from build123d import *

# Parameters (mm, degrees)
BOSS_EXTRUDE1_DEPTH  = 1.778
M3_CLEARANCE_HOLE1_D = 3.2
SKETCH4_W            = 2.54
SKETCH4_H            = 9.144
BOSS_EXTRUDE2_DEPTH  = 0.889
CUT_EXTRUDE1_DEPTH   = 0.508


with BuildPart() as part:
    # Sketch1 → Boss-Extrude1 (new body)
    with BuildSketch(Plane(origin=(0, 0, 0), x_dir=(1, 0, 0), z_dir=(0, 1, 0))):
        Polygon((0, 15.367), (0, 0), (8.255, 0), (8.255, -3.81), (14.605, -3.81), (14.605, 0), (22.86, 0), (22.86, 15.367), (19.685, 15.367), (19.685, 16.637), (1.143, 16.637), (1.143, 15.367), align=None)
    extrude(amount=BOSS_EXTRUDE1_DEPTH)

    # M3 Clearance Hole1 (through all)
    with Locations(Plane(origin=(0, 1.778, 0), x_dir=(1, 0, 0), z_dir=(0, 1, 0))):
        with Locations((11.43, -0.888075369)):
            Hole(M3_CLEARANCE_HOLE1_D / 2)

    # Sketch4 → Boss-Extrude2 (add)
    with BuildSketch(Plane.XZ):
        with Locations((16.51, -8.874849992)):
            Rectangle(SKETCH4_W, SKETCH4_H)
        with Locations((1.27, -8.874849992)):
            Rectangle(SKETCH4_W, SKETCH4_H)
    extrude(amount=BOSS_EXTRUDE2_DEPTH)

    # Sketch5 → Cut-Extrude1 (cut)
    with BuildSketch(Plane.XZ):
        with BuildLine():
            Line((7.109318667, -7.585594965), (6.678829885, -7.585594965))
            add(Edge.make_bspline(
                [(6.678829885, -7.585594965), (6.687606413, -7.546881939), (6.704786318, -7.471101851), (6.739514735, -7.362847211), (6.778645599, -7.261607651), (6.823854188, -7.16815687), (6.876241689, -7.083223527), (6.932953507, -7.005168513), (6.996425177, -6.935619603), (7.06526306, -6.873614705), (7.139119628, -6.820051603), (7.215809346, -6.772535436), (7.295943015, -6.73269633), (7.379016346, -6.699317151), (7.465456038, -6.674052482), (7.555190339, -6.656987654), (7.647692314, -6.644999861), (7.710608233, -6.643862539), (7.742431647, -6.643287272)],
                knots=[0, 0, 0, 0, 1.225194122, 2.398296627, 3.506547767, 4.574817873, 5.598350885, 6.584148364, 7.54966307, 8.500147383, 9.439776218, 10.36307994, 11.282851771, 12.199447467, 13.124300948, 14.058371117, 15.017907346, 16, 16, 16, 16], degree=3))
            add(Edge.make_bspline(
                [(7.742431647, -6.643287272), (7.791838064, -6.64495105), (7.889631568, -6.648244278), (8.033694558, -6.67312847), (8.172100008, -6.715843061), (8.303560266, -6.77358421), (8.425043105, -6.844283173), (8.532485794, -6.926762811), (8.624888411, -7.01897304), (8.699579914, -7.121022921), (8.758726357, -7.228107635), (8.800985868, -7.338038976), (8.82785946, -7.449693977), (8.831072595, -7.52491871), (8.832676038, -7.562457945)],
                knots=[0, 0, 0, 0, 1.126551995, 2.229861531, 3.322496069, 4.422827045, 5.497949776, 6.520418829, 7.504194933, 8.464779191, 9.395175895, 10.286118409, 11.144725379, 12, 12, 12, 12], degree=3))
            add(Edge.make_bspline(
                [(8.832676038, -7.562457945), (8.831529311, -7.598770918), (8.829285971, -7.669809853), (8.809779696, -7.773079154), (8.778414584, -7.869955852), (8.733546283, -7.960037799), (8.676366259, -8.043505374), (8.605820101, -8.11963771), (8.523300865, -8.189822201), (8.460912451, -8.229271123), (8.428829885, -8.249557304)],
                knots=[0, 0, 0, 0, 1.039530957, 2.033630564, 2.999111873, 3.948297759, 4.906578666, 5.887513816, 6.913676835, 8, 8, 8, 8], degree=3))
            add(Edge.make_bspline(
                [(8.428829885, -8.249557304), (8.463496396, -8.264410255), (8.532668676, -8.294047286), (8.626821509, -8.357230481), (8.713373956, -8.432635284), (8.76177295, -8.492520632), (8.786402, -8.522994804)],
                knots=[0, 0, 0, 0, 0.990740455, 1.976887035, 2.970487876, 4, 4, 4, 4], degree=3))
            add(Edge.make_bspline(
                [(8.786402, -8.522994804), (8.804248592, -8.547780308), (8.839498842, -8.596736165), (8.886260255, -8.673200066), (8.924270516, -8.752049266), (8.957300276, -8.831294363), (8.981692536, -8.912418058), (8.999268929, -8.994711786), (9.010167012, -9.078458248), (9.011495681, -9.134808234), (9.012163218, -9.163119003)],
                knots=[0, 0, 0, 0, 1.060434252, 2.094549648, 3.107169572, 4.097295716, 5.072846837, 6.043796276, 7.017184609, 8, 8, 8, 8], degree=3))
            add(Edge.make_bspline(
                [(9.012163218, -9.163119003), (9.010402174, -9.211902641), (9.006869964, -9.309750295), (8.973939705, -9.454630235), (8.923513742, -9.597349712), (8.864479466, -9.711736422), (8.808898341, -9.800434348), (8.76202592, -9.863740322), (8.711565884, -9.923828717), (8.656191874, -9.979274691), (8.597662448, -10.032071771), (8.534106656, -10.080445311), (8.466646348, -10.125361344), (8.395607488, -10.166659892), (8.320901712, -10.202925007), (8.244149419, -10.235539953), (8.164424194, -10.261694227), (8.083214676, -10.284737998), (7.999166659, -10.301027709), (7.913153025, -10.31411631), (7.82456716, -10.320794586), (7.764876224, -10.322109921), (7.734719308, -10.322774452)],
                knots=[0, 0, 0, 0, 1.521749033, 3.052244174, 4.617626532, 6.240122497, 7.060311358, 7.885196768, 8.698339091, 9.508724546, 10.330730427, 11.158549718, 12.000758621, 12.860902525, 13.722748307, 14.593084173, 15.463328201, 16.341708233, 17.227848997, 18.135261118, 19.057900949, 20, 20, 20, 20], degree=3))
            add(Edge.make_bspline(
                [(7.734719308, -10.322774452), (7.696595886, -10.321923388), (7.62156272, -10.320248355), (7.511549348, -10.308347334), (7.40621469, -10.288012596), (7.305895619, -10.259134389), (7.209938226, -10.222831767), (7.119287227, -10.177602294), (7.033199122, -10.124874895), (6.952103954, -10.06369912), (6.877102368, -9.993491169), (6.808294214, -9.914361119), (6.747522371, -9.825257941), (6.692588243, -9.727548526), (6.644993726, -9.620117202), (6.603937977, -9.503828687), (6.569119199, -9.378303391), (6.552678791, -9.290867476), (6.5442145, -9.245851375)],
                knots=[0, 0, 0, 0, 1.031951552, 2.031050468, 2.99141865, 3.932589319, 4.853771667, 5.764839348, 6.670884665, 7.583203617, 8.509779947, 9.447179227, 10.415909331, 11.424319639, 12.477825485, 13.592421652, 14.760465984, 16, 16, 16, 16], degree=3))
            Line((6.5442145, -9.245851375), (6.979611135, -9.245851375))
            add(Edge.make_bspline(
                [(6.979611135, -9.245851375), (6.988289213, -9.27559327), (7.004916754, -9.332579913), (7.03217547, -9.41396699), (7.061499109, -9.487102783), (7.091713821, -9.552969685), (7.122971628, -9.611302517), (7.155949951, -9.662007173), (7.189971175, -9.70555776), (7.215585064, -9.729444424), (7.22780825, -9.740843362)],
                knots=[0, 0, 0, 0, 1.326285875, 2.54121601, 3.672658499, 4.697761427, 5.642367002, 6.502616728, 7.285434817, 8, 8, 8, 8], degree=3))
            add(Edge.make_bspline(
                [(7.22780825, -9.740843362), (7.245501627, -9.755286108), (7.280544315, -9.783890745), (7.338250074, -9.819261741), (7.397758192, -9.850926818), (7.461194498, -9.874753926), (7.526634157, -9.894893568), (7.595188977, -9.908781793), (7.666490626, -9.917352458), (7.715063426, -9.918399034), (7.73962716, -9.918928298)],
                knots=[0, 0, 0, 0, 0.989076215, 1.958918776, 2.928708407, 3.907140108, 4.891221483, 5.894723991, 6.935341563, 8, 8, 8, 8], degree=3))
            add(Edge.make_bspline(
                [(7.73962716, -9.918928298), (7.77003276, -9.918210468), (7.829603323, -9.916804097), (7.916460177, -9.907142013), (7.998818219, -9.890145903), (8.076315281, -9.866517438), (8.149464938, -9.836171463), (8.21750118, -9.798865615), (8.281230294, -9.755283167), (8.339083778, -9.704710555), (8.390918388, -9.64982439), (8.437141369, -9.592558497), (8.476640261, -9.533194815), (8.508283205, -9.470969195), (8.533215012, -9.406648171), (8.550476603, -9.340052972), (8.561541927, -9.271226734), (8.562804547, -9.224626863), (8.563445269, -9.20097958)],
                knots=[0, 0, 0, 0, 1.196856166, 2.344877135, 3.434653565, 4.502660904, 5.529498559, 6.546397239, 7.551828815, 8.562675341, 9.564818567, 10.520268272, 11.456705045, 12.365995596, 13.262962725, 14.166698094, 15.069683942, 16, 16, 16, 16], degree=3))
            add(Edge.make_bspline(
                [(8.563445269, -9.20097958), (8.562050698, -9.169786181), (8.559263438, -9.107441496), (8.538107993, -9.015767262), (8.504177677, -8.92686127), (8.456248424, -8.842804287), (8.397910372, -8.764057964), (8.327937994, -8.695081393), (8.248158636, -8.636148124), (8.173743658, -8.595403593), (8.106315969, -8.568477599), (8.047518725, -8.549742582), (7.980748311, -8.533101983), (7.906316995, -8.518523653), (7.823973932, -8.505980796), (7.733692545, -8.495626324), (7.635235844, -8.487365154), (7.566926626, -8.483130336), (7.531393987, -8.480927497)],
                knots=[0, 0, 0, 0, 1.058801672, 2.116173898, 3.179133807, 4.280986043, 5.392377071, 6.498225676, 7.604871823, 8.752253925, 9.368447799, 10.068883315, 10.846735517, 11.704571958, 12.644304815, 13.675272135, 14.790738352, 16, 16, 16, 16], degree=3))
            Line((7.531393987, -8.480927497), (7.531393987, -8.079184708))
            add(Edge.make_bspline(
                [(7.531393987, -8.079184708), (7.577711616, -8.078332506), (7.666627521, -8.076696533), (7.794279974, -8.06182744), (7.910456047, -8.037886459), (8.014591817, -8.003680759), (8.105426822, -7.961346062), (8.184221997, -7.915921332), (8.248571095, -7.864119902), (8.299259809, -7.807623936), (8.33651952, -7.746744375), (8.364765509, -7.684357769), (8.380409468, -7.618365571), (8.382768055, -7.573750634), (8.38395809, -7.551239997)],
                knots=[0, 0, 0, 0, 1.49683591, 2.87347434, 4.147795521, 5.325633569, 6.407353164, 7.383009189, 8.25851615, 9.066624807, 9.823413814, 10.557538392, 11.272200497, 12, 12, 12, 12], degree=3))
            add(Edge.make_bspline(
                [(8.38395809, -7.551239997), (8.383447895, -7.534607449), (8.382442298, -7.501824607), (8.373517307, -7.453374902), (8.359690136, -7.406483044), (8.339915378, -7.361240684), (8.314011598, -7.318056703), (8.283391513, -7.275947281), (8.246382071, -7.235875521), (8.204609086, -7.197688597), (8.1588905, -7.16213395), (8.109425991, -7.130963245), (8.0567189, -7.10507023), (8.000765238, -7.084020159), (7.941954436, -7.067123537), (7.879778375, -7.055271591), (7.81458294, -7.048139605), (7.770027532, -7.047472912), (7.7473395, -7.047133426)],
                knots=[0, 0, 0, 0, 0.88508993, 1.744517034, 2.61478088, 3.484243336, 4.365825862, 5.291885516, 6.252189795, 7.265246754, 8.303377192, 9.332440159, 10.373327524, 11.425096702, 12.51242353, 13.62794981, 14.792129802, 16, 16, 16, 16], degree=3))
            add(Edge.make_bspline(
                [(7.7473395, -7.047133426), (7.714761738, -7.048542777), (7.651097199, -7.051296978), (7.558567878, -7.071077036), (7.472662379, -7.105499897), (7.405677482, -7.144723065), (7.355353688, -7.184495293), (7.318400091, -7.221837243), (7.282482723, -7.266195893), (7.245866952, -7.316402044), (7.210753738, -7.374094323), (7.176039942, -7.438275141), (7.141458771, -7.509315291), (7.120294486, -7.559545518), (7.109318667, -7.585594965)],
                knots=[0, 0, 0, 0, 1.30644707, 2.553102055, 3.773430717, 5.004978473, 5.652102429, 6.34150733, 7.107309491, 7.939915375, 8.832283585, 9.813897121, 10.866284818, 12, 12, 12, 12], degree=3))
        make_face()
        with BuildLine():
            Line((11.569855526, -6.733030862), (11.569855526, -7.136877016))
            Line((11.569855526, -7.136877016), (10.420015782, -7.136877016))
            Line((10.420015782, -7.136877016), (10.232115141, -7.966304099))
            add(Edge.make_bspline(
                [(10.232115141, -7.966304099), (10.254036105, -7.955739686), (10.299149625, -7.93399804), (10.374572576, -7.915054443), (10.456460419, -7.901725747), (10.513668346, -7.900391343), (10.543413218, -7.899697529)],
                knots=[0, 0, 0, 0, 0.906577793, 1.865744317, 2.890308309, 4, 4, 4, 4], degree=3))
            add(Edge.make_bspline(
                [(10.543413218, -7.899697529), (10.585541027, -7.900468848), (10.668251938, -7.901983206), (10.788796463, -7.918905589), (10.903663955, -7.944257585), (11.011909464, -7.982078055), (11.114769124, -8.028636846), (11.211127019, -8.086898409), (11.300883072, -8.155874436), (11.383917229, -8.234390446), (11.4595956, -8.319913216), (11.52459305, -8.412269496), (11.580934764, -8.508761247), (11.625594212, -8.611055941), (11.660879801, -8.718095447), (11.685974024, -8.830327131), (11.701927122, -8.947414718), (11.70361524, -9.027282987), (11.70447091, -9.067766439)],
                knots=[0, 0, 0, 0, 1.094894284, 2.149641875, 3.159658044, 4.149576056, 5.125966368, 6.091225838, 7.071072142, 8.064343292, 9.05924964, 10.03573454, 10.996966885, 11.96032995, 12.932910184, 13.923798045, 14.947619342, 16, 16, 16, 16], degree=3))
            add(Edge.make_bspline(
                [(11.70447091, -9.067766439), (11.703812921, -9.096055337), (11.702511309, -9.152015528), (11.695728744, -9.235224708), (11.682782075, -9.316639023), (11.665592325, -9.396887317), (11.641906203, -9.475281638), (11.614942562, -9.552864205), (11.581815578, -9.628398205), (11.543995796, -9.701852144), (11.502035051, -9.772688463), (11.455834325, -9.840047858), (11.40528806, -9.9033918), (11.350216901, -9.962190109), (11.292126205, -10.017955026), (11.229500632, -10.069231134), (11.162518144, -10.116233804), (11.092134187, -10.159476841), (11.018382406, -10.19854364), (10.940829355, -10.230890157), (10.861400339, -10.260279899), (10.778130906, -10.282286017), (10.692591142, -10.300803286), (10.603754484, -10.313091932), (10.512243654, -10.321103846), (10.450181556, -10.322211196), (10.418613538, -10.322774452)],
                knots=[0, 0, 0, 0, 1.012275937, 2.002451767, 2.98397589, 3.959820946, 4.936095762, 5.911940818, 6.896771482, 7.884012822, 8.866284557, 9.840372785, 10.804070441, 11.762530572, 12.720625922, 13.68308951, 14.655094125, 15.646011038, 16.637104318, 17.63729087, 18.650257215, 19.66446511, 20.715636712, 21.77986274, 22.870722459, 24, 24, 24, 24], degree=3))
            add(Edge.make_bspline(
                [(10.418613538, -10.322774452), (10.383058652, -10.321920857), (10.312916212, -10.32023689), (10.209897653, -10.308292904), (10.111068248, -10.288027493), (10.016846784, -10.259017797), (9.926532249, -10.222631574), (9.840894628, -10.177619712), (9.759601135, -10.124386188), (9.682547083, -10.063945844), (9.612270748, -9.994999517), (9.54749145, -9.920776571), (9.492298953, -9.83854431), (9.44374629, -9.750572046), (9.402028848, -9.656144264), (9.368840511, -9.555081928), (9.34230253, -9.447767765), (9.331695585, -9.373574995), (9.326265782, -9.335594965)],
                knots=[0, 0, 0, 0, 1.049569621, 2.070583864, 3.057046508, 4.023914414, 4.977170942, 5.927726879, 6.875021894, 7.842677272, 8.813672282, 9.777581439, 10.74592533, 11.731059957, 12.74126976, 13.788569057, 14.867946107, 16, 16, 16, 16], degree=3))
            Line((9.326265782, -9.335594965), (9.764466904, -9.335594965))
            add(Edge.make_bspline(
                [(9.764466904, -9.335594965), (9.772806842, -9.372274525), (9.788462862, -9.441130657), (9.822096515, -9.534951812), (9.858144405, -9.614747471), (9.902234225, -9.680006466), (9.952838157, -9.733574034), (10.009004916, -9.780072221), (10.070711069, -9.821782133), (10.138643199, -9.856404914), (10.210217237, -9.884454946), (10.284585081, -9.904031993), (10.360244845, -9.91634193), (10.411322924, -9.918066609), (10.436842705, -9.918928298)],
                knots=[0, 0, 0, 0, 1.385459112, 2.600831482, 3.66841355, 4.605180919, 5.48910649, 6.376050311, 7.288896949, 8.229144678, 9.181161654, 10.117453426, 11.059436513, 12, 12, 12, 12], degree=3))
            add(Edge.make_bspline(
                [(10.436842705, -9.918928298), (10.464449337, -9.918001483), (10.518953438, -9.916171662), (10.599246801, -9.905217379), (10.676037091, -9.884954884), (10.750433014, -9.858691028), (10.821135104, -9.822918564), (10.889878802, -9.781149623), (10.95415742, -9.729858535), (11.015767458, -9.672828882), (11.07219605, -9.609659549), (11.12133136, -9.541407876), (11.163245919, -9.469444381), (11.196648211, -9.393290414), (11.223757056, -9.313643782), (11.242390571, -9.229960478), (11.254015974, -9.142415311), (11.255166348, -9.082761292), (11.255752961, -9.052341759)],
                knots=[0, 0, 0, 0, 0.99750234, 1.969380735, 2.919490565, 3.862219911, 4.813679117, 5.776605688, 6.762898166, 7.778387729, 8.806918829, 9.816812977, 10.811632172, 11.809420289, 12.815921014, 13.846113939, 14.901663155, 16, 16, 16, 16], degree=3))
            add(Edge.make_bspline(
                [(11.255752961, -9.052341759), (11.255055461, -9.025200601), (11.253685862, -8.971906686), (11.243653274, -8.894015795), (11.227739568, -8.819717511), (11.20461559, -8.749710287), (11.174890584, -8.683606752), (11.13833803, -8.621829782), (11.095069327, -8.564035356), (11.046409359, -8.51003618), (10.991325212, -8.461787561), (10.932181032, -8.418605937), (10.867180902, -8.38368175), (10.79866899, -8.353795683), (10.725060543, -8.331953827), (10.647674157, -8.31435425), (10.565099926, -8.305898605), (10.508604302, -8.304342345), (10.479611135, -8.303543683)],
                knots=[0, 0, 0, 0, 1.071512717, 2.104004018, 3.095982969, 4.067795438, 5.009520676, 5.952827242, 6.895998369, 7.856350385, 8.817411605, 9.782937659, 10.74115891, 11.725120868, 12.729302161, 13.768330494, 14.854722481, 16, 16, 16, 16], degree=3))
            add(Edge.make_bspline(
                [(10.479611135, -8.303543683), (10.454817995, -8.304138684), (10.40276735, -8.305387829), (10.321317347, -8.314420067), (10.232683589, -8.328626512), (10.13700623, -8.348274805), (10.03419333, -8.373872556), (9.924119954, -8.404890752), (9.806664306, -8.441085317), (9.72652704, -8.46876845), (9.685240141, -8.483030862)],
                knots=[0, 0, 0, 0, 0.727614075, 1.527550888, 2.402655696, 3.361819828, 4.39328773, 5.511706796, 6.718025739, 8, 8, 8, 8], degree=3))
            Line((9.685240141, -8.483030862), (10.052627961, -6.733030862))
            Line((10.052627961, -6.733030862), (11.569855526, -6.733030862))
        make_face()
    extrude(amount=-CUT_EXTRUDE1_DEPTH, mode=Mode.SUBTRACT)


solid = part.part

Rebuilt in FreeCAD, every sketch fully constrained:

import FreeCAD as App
import Part
import Sketcher
Q = App.Units.Quantity

doc = App.newDocument("Part")
body = doc.addObject("PartDesign::Body", "Body")

sketch1 = doc.addObject("Sketcher::SketchObject", "Sketch")
body.addObject(sketch1)
sketch1.AttachmentSupport = (doc.XZ_Plane, [""])
sketch1.MapMode = "FlatFace"
sketch1.addGeometry(Part.LineSegment(App.Vector(0, -15.367, 0), App.Vector(0, 0, 0)), False)
sketch1.addGeometry(Part.LineSegment(App.Vector(0, 0, 0), App.Vector(8.255, 0, 0)), False)
sketch1.addGeometry(Part.LineSegment(App.Vector(8.255, 0, 0), App.Vector(8.255, 3.81, 0)), False)
sketch1.addGeometry(Part.LineSegment(App.Vector(8.255, 3.81, 0), App.Vector(14.605, 3.81, 0)), False)
sketch1.addGeometry(Part.LineSegment(App.Vector(14.605, 3.81, 0), App.Vector(14.605, 0, 0)), False)
sketch1.addGeometry(Part.LineSegment(App.Vector(14.605, 0, 0), App.Vector(22.86, 0, 0)), False)
sketch1.addGeometry(Part.LineSegment(App.Vector(22.86, 0, 0), App.Vector(22.86, -15.367, 0)), False)
sketch1.addGeometry(Part.LineSegment(App.Vector(22.86, -15.367, 0), App.Vector(19.685, -15.367, 0)), False)
sketch1.addGeometry(Part.LineSegment(App.Vector(19.685, -15.367, 0), App.Vector(19.685, -16.637, 0)), False)
sketch1.addGeometry(Part.LineSegment(App.Vector(19.685, -16.637, 0), App.Vector(1.143, -16.637, 0)), False)
sketch1.addGeometry(Part.LineSegment(App.Vector(1.143, -16.637, 0), App.Vector(1.143, -15.367, 0)), False)
sketch1.addGeometry(Part.LineSegment(App.Vector(1.143, -15.367, 0), App.Vector(0, -15.367, 0)), False)
sketch1.addConstraint(Sketcher.Constraint("Coincident", 0, 2, 1, 1))
sketch1.addConstraint(Sketcher.Constraint("Coincident", 1, 2, 2, 1))
sketch1.addConstraint(Sketcher.Constraint("Coincident", 2, 2, 3, 1))
sketch1.addConstraint(Sketcher.Constraint("Coincident", 3, 2, 4, 1))
sketch1.addConstraint(Sketcher.Constraint("Coincident", 4, 2, 5, 1))
sketch1.addConstraint(Sketcher.Constraint("Coincident", 5, 2, 6, 1))
sketch1.addConstraint(Sketcher.Constraint("Coincident", 6, 2, 7, 1))
sketch1.addConstraint(Sketcher.Constraint("Coincident", 7, 2, 8, 1))
sketch1.addConstraint(Sketcher.Constraint("Coincident", 8, 2, 9, 1))
sketch1.addConstraint(Sketcher.Constraint("Coincident", 9, 2, 10, 1))
sketch1.addConstraint(Sketcher.Constraint("Coincident", 10, 2, 11, 1))
sketch1.addConstraint(Sketcher.Constraint("Coincident", 11, 2, 0, 1))
sketch1.addConstraint(Sketcher.Constraint("Vertical", 0))
sketch1.addConstraint(Sketcher.Constraint("Horizontal", 1))
sketch1.addConstraint(Sketcher.Constraint("Vertical", 2))
sketch1.addConstraint(Sketcher.Constraint("Horizontal", 3))
sketch1.addConstraint(Sketcher.Constraint("Vertical", 4))
sketch1.addConstraint(Sketcher.Constraint("Horizontal", 5))
sketch1.addConstraint(Sketcher.Constraint("Vertical", 6))
sketch1.addConstraint(Sketcher.Constraint("Horizontal", 7))
sketch1.addConstraint(Sketcher.Constraint("Vertical", 8))
sketch1.addConstraint(Sketcher.Constraint("Horizontal", 9))
sketch1.addConstraint(Sketcher.Constraint("Vertical", 10))
sketch1.addConstraint(Sketcher.Constraint("Horizontal", 11))
sketch1.addConstraint(Sketcher.Constraint("Coincident", 0, 2, -1, 1))
sketch1.addConstraint(Sketcher.Constraint("PointOnObject", 4, 2, -1))
sketch1.addConstraint(Sketcher.Constraint("Horizontal", 7, 2, 10, 2))
sketch1.addConstraint(Sketcher.Constraint("Equal", 1, 5))
sketch1.addConstraint(Sketcher.Constraint("DistanceX", 3, 1, 3, 2, Q("0.25 in")))
sketch1.addConstraint(Sketcher.Constraint("DistanceX", 9, 2, 9, 1, Q("0.73 in")))
sketch1.addConstraint(Sketcher.Constraint("DistanceY", 2, 1, 2, 2, Q("0.15 in")))
sketch1.addConstraint(Sketcher.Constraint("DistanceY", 8, 2, 8, 1, Q("0.05 in")))
sketch1.addConstraint(Sketcher.Constraint("DistanceX", -1, 1, 5, 2, Q("0.9 in")))
sketch1.addConstraint(Sketcher.Constraint("DistanceX", 4, 2, 7, 2, Q("0.2 in")))
sketch1.addConstraint(Sketcher.Constraint("DistanceY", 0, 1, 0, 2, Q("0.605 in")))
pad1 = doc.addObject("PartDesign::Pad", "Pad")
body.addObject(pad1)
pad1.Profile = sketch1
pad1.Length = Q("0.07 in")
pad1.Reversed = True

sketch2 = doc.addObject("Sketcher::SketchObject", "Sketch001")
body.addObject(sketch2)
sketch2.AttachmentSupport = (doc.XZ_Plane, [""])
sketch2.MapMode = "FlatFace"
sketch2.AttachmentOffset = App.Placement(App.Vector(0, 0, -0.07 * 25.4), App.Rotation())
sketch2.addGeometry(Part.Circle(App.Vector(11.43, 0.888075, 0), App.Vector(0, 0, 1), 1.6), False)
sketch2.addConstraint(Sketcher.Constraint("Diameter", 0, Q("3.2 mm")))
sketch2.addConstraint(Sketcher.Constraint("DistanceX", -1, 1, 0, 3, Q("0.45 in")))
sketch2.addConstraint(Sketcher.Constraint("DistanceY", -1, 1, 0, 3, Q("0.888075 mm")))
doc.recompute()
hole = doc.addObject("PartDesign::Hole", "Hole")
body.addObject(hole)
hole.Profile = sketch2
hole.ThreadType = "None"
hole.Diameter = 3.2
hole.DepthType = "ThroughAll"
hole.Reversed = True

sketch3 = doc.addObject("Sketcher::SketchObject", "Sketch002")
body.addObject(sketch3)
sketch3.AttachmentSupport = (doc.XZ_Plane, [""])
sketch3.MapMode = "FlatFace"
sketch3.addGeometry(Part.LineSegment(App.Vector(15.24, -4.30285, 0), App.Vector(15.24, -13.44685, 0)), False)
sketch3.addGeometry(Part.LineSegment(App.Vector(15.24, -13.44685, 0), App.Vector(17.78, -13.44685, 0)), False)
sketch3.addGeometry(Part.LineSegment(App.Vector(17.78, -13.44685, 0), App.Vector(17.78, -4.30285, 0)), False)
sketch3.addGeometry(Part.LineSegment(App.Vector(17.78, -4.30285, 0), App.Vector(15.24, -4.30285, 0)), False)
sketch3.addGeometry(Part.LineSegment(App.Vector(0, -4.30285, 0), App.Vector(0, -13.44685, 0)), False)
sketch3.addGeometry(Part.LineSegment(App.Vector(0, -13.44685, 0), App.Vector(2.54, -13.44685, 0)), False)
sketch3.addGeometry(Part.LineSegment(App.Vector(2.54, -13.44685, 0), App.Vector(2.54, -4.30285, 0)), False)
sketch3.addGeometry(Part.LineSegment(App.Vector(2.54, -4.30285, 0), App.Vector(0, -4.30285, 0)), False)
sketch3.addConstraint(Sketcher.Constraint("Coincident", 0, 2, 1, 1))
sketch3.addConstraint(Sketcher.Constraint("Coincident", 1, 2, 2, 1))
sketch3.addConstraint(Sketcher.Constraint("Coincident", 2, 2, 3, 1))
sketch3.addConstraint(Sketcher.Constraint("Coincident", 3, 2, 0, 1))
sketch3.addConstraint(Sketcher.Constraint("Coincident", 4, 2, 5, 1))
sketch3.addConstraint(Sketcher.Constraint("Coincident", 5, 2, 6, 1))
sketch3.addConstraint(Sketcher.Constraint("Coincident", 6, 2, 7, 1))
sketch3.addConstraint(Sketcher.Constraint("Coincident", 7, 2, 4, 1))
sketch3.addConstraint(Sketcher.Constraint("Vertical", 0))
sketch3.addConstraint(Sketcher.Constraint("Horizontal", 1))
sketch3.addConstraint(Sketcher.Constraint("Vertical", 2))
sketch3.addConstraint(Sketcher.Constraint("Horizontal", 3))
sketch3.addConstraint(Sketcher.Constraint("Vertical", 4))
sketch3.addConstraint(Sketcher.Constraint("Horizontal", 5))
sketch3.addConstraint(Sketcher.Constraint("Vertical", 6))
sketch3.addConstraint(Sketcher.Constraint("Horizontal", 7))
sketch3.addConstraint(Sketcher.Constraint("PointOnObject", 4, 2, -2))
sketch3.addConstraint(Sketcher.Constraint("Horizontal", 1, 2, 4, 2))
sketch3.addConstraint(Sketcher.Constraint("Horizontal", 3, 2, 6, 2))
sketch3.addConstraint(Sketcher.Constraint("Equal", 3, 5))
sketch3.addConstraint(Sketcher.Constraint("DistanceX", 1, 1, 1, 2, Q("0.1 in")))
sketch3.addConstraint(Sketcher.Constraint("DistanceY", 0, 2, 0, 1, Q("0.36 in")))
sketch3.addConstraint(Sketcher.Constraint("DistanceX", -1, 1, 0, 2, Q("0.6 in")))
sketch3.addConstraint(Sketcher.Constraint("DistanceY", 0, 2, -1, 1, Q("13.44685 mm")))
pad2 = doc.addObject("PartDesign::Pad", "Pad001")
body.addObject(pad2)
pad2.Profile = sketch3
pad2.Length = Q("0.035 in")

sketch4 = doc.addObject("Sketcher::SketchObject", "Sketch003")
body.addObject(sketch4)
sketch4.AttachmentSupport = (doc.XZ_Plane, [""])
sketch4.MapMode = "FlatFace"
sketch4.addGeometry(Part.LineSegment(App.Vector(6.67883, -7.585595, 0), App.Vector(7.109319, -7.585595, 0)), False)
sketch4.addGeometry(Part.BSplineCurve([App.Vector(7.747339, -7.047133, 0), App.Vector(7.714762, -7.048543, 0), App.Vector(7.651097, -7.051297, 0), App.Vector(7.558568, -7.071077, 0), App.Vector(7.472662, -7.1055, 0), App.Vector(7.405677, -7.144723, 0), App.Vector(7.355354, -7.184495, 0), App.Vector(7.3184, -7.221837, 0), App.Vector(7.282483, -7.266196, 0), App.Vector(7.245867, -7.316402, 0), App.Vector(7.210754, -7.374094, 0), App.Vector(7.17604, -7.438275, 0), App.Vector(7.141459, -7.509315, 0), App.Vector(7.120294, -7.559546, 0), App.Vector(7.109319, -7.585595, 0)], [4, 1, 1, 1, 1, 1, 1, 1, 1, 1, 1, 1, 4], [0, 1.30644707, 2.553102055, 3.773430717, 5.004978473, 5.652102429, 6.34150733, 7.107309491, 7.939915375, 8.832283585, 9.813897121, 10.866284818, 12], False, 3, [1, 1, 1, 1, 1, 1, 1, 1, 1, 1, 1, 1, 1, 1, 1], False), False)
sketch4.addGeometry(Part.BSplineCurve([App.Vector(8.383958, -7.55124, 0), App.Vector(8.383448, -7.534607, 0), App.Vector(8.382442, -7.501825, 0), App.Vector(8.373517, -7.453375, 0), App.Vector(8.35969, -7.406483, 0), App.Vector(8.339915, -7.361241, 0), App.Vector(8.314012, -7.318057, 0), App.Vector(8.283392, -7.275947, 0), App.Vector(8.246382, -7.235876, 0), App.Vector(8.204609, -7.197689, 0), App.Vector(8.158891, -7.162134, 0), App.Vector(8.109426, -7.130963, 0), App.Vector(8.056719, -7.10507, 0), App.Vector(8.000765, -7.08402, 0), App.Vector(7.941954, -7.067124, 0), App.Vector(7.879778, -7.055272, 0), App.Vector(7.814583, -7.04814, 0), App.Vector(7.770028, -7.047473, 0), App.Vector(7.747339, -7.047133, 0)], [4, 1, 1, 1, 1, 1, 1, 1, 1, 1, 1, 1, 1, 1, 1, 1, 4], [0, 0.88508993, 1.744517034, 2.61478088, 3.484243336, 4.365825862, 5.291885516, 6.252189795, 7.265246754, 8.303377192, 9.332440159, 10.373327524, 11.425096702, 12.51242353, 13.62794981, 14.792129802, 16], False, 3, [1, 1, 1, 1, 1, 1, 1, 1, 1, 1, 1, 1, 1, 1, 1, 1, 1, 1, 1], False), False)
sketch4.addGeometry(Part.BSplineCurve([App.Vector(7.531394, -8.079185, 0), App.Vector(7.577712, -8.078333, 0), App.Vector(7.666628, -8.076697, 0), App.Vector(7.79428, -8.061827, 0), App.Vector(7.910456, -8.037886, 0), App.Vector(8.014592, -8.003681, 0), App.Vector(8.105427, -7.961346, 0), App.Vector(8.184222, -7.915921, 0), App.Vector(8.248571, -7.86412, 0), App.Vector(8.29926, -7.807624, 0), App.Vector(8.33652, -7.746744, 0), App.Vector(8.364766, -7.684358, 0), App.Vector(8.380409, -7.618366, 0), App.Vector(8.382768, -7.573751, 0), App.Vector(8.383958, -7.55124, 0)], [4, 1, 1, 1, 1, 1, 1, 1, 1, 1, 1, 1, 4], [0, 1.49683591, 2.87347434, 4.147795521, 5.325633569, 6.407353164, 7.383009189, 8.25851615, 9.066624807, 9.823413814, 10.557538392, 11.272200497, 12], False, 3, [1, 1, 1, 1, 1, 1, 1, 1, 1, 1, 1, 1, 1, 1, 1], False), False)
sketch4.addGeometry(Part.LineSegment(App.Vector(7.531394, -8.079185, 0), App.Vector(7.531394, -8.480927, 0)), False)
sketch4.addGeometry(Part.BSplineCurve([App.Vector(8.563445, -9.20098, 0), App.Vector(8.562051, -9.169786, 0), App.Vector(8.559263, -9.107441, 0), App.Vector(8.538108, -9.015767, 0), App.Vector(8.504178, -8.926861, 0), App.Vector(8.456248, -8.842804, 0), App.Vector(8.39791, -8.764058, 0), App.Vector(8.327938, -8.695081, 0), App.Vector(8.248159, -8.636148, 0), App.Vector(8.173744, -8.595404, 0), App.Vector(8.106316, -8.568478, 0), App.Vector(8.047519, -8.549743, 0), App.Vector(7.980748, -8.533102, 0), App.Vector(7.906317, -8.518524, 0), App.Vector(7.823974, -8.505981, 0), App.Vector(7.733693, -8.495626, 0), App.Vector(7.635236, -8.487365, 0), App.Vector(7.566927, -8.48313, 0), App.Vector(7.531394, -8.480927, 0)], [4, 1, 1, 1, 1, 1, 1, 1, 1, 1, 1, 1, 1, 1, 1, 1, 4], [0, 1.058801672, 2.116173898, 3.179133807, 4.280986043, 5.392377071, 6.498225676, 7.604871823, 8.752253925, 9.368447799, 10.068883315, 10.846735517, 11.704571958, 12.644304815, 13.675272135, 14.790738352, 16], False, 3, [1, 1, 1, 1, 1, 1, 1, 1, 1, 1, 1, 1, 1, 1, 1, 1, 1, 1, 1], False), False)
sketch4.addGeometry(Part.BSplineCurve([App.Vector(7.739627, -9.918928, 0), App.Vector(7.770033, -9.91821, 0), App.Vector(7.829603, -9.916804, 0), App.Vector(7.91646, -9.907142, 0), App.Vector(7.998818, -9.890146, 0), App.Vector(8.076315, -9.866517, 0), App.Vector(8.149465, -9.836171, 0), App.Vector(8.217501, -9.798866, 0), App.Vector(8.28123, -9.755283, 0), App.Vector(8.339084, -9.704711, 0), App.Vector(8.390918, -9.649824, 0), App.Vector(8.437141, -9.592558, 0), App.Vector(8.47664, -9.533195, 0), App.Vector(8.508283, -9.470969, 0), App.Vector(8.533215, -9.406648, 0), App.Vector(8.550477, -9.340053, 0), App.Vector(8.561542, -9.271227, 0), App.Vector(8.562805, -9.224627, 0), App.Vector(8.563445, -9.20098, 0)], [4, 1, 1, 1, 1, 1, 1, 1, 1, 1, 1, 1, 1, 1, 1, 1, 4], [0, 1.196856166, 2.344877135, 3.434653565, 4.502660904, 5.529498559, 6.546397239, 7.551828815, 8.562675341, 9.564818567, 10.520268272, 11.456705045, 12.365995596, 13.262962725, 14.166698094, 15.069683942, 16], False, 3, [1, 1, 1, 1, 1, 1, 1, 1, 1, 1, 1, 1, 1, 1, 1, 1, 1, 1, 1], False), False)
sketch4.addGeometry(Part.BSplineCurve([App.Vector(7.227808, -9.740843, 0), App.Vector(7.245502, -9.755286, 0), App.Vector(7.280544, -9.783891, 0), App.Vector(7.33825, -9.819262, 0), App.Vector(7.397758, -9.850927, 0), App.Vector(7.461194, -9.874754, 0), App.Vector(7.526634, -9.894894, 0), App.Vector(7.595189, -9.908782, 0), App.Vector(7.666491, -9.917352, 0), App.Vector(7.715063, -9.918399, 0), App.Vector(7.739627, -9.918928, 0)], [4, 1, 1, 1, 1, 1, 1, 1, 4], [0, 0.989076215, 1.958918776, 2.928708407, 3.907140108, 4.891221483, 5.894723991, 6.935341563, 8], False, 3, [1, 1, 1, 1, 1, 1, 1, 1, 1, 1, 1], False), False)
sketch4.addGeometry(Part.BSplineCurve([App.Vector(6.979611, -9.245851, 0), App.Vector(6.988289, -9.275593, 0), App.Vector(7.004917, -9.33258, 0), App.Vector(7.032175, -9.413967, 0), App.Vector(7.061499, -9.487103, 0), App.Vector(7.091714, -9.55297, 0), App.Vector(7.122972, -9.611303, 0), App.Vector(7.15595, -9.662007, 0), App.Vector(7.189971, -9.705558, 0), App.Vector(7.215585, -9.729444, 0), App.Vector(7.227808, -9.740843, 0)], [4, 1, 1, 1, 1, 1, 1, 1, 4], [0, 1.326285875, 2.54121601, 3.672658499, 4.697761427, 5.642367002, 6.502616728, 7.285434817, 8], False, 3, [1, 1, 1, 1, 1, 1, 1, 1, 1, 1, 1], False), False)
sketch4.addGeometry(Part.LineSegment(App.Vector(6.979611, -9.245851, 0), App.Vector(6.544214, -9.245851, 0)), False)
sketch4.addGeometry(Part.BSplineCurve([App.Vector(7.734719, -10.322774, 0), App.Vector(7.696596, -10.321923, 0), App.Vector(7.621563, -10.320248, 0), App.Vector(7.511549, -10.308347, 0), App.Vector(7.406215, -10.288013, 0), App.Vector(7.305896, -10.259134, 0), App.Vector(7.209938, -10.222832, 0), App.Vector(7.119287, -10.177602, 0), App.Vector(7.033199, -10.124875, 0), App.Vector(6.952104, -10.063699, 0), App.Vector(6.877102, -9.993491, 0), App.Vector(6.808294, -9.914361, 0), App.Vector(6.747522, -9.825258, 0), App.Vector(6.692588, -9.727549, 0), App.Vector(6.644994, -9.620117, 0), App.Vector(6.603938, -9.503829, 0), App.Vector(6.569119, -9.378303, 0), App.Vector(6.552679, -9.290867, 0), App.Vector(6.544214, -9.245851, 0)], [4, 1, 1, 1, 1, 1, 1, 1, 1, 1, 1, 1, 1, 1, 1, 1, 4], [0, 1.031951552, 2.031050468, 2.99141865, 3.932589319, 4.853771667, 5.764839348, 6.670884665, 7.583203617, 8.509779947, 9.447179227, 10.415909331, 11.424319639, 12.477825485, 13.592421652, 14.760465984, 16], False, 3, [1, 1, 1, 1, 1, 1, 1, 1, 1, 1, 1, 1, 1, 1, 1, 1, 1, 1, 1], False), False)
sketch4.addGeometry(Part.BSplineCurve([App.Vector(9.012163, -9.163119, 0), App.Vector(9.010402, -9.211903, 0), App.Vector(9.00687, -9.30975, 0), App.Vector(8.97394, -9.45463, 0), App.Vector(8.923514, -9.59735, 0), App.Vector(8.864479, -9.711736, 0), App.Vector(8.808898, -9.800434, 0), App.Vector(8.762026, -9.86374, 0), App.Vector(8.711566, -9.923829, 0), App.Vector(8.656192, -9.979275, 0), App.Vector(8.597662, -10.032072, 0), App.Vector(8.534107, -10.080445, 0), App.Vector(8.466646, -10.125361, 0), App.Vector(8.395607, -10.16666, 0), App.Vector(8.320902, -10.202925, 0), App.Vector(8.244149, -10.23554, 0), App.Vector(8.164424, -10.261694, 0), App.Vector(8.083215, -10.284738, 0), App.Vector(7.999167, -10.301028, 0), App.Vector(7.913153, -10.314116, 0), App.Vector(7.824567, -10.320795, 0), App.Vector(7.764876, -10.32211, 0), App.Vector(7.734719, -10.322774, 0)], [4, 1, 1, 1, 1, 1, 1, 1, 1, 1, 1, 1, 1, 1, 1, 1, 1, 1, 1, 1, 4], [0, 1.521749033, 3.052244174, 4.617626532, 6.240122497, 7.060311358, 7.885196768, 8.698339091, 9.508724546, 10.330730427, 11.158549718, 12.000758621, 12.860902525, 13.722748307, 14.593084173, 15.463328201, 16.341708233, 17.227848997, 18.135261118, 19.057900949, 20], False, 3, [1, 1, 1, 1, 1, 1, 1, 1, 1, 1, 1, 1, 1, 1, 1, 1, 1, 1, 1, 1, 1, 1, 1], False), False)
sketch4.addGeometry(Part.BSplineCurve([App.Vector(8.786402, -8.522995, 0), App.Vector(8.804249, -8.54778, 0), App.Vector(8.839499, -8.596736, 0), App.Vector(8.88626, -8.6732, 0), App.Vector(8.924271, -8.752049, 0), App.Vector(8.9573, -8.831294, 0), App.Vector(8.981693, -8.912418, 0), App.Vector(8.999269, -8.994712, 0), App.Vector(9.010167, -9.078458, 0), App.Vector(9.011496, -9.134808, 0), App.Vector(9.012163, -9.163119, 0)], [4, 1, 1, 1, 1, 1, 1, 1, 4], [0, 1.060434252, 2.094549648, 3.107169572, 4.097295716, 5.072846837, 6.043796276, 7.017184609, 8], False, 3, [1, 1, 1, 1, 1, 1, 1, 1, 1, 1, 1], False), False)
sketch4.addGeometry(Part.BSplineCurve([App.Vector(8.42883, -8.249557, 0), App.Vector(8.463496, -8.26441, 0), App.Vector(8.532669, -8.294047, 0), App.Vector(8.626822, -8.35723, 0), App.Vector(8.713374, -8.432635, 0), App.Vector(8.761773, -8.492521, 0), App.Vector(8.786402, -8.522995, 0)], [4, 1, 1, 1, 4], [0, 0.990740455, 1.976887035, 2.970487876, 4], False, 3, [1, 1, 1, 1, 1, 1, 1], False), False)
sketch4.addGeometry(Part.BSplineCurve([App.Vector(8.832676, -7.562458, 0), App.Vector(8.831529, -7.598771, 0), App.Vector(8.829286, -7.66981, 0), App.Vector(8.80978, -7.773079, 0), App.Vector(8.778415, -7.869956, 0), App.Vector(8.733546, -7.960038, 0), App.Vector(8.676366, -8.043505, 0), App.Vector(8.60582, -8.119638, 0), App.Vector(8.523301, -8.189822, 0), App.Vector(8.460912, -8.229271, 0), App.Vector(8.42883, -8.249557, 0)], [4, 1, 1, 1, 1, 1, 1, 1, 4], [0, 1.039530957, 2.033630564, 2.999111873, 3.948297759, 4.906578666, 5.887513816, 6.913676835, 8], False, 3, [1, 1, 1, 1, 1, 1, 1, 1, 1, 1, 1], False), False)
sketch4.addGeometry(Part.BSplineCurve([App.Vector(7.742432, -6.643287, 0), App.Vector(7.791838, -6.644951, 0), App.Vector(7.889632, -6.648244, 0), App.Vector(8.033695, -6.673128, 0), App.Vector(8.1721, -6.715843, 0), App.Vector(8.30356, -6.773584, 0), App.Vector(8.425043, -6.844283, 0), App.Vector(8.532486, -6.926763, 0), App.Vector(8.624888, -7.018973, 0), App.Vector(8.69958, -7.121023, 0), App.Vector(8.758726, -7.228108, 0), App.Vector(8.800986, -7.338039, 0), App.Vector(8.827859, -7.449694, 0), App.Vector(8.831073, -7.524919, 0), App.Vector(8.832676, -7.562458, 0)], [4, 1, 1, 1, 1, 1, 1, 1, 1, 1, 1, 1, 4], [0, 1.126551995, 2.229861531, 3.322496069, 4.422827045, 5.497949776, 6.520418829, 7.504194933, 8.464779191, 9.395175895, 10.286118409, 11.144725379, 12], False, 3, [1, 1, 1, 1, 1, 1, 1, 1, 1, 1, 1, 1, 1, 1, 1], False), False)
sketch4.addGeometry(Part.BSplineCurve([App.Vector(6.67883, -7.585595, 0), App.Vector(6.687606, -7.546882, 0), App.Vector(6.704786, -7.471102, 0), App.Vector(6.739515, -7.362847, 0), App.Vector(6.778646, -7.261608, 0), App.Vector(6.823854, -7.168157, 0), App.Vector(6.876242, -7.083224, 0), App.Vector(6.932954, -7.005169, 0), App.Vector(6.996425, -6.93562, 0), App.Vector(7.065263, -6.873615, 0), App.Vector(7.13912, -6.820052, 0), App.Vector(7.215809, -6.772535, 0), App.Vector(7.295943, -6.732696, 0), App.Vector(7.379016, -6.699317, 0), App.Vector(7.465456, -6.674052, 0), App.Vector(7.55519, -6.656988, 0), App.Vector(7.647692, -6.645, 0), App.Vector(7.710608, -6.643863, 0), App.Vector(7.742432, -6.643287, 0)], [4, 1, 1, 1, 1, 1, 1, 1, 1, 1, 1, 1, 1, 1, 1, 1, 4], [0, 1.225194122, 2.398296627, 3.506547767, 4.574817873, 5.598350885, 6.584148364, 7.54966307, 8.500147383, 9.439776218, 10.36307994, 11.282851771, 12.199447467, 13.124300948, 14.058371117, 15.017907346, 16], False, 3, [1, 1, 1, 1, 1, 1, 1, 1, 1, 1, 1, 1, 1, 1, 1, 1, 1, 1, 1], False), False)
sketch4.addGeometry(Part.LineSegment(App.Vector(11.569856, -7.136877, 0), App.Vector(11.569856, -6.733031, 0)), False)
sketch4.addGeometry(Part.LineSegment(App.Vector(11.569856, -6.733031, 0), App.Vector(10.052628, -6.733031, 0)), False)
sketch4.addGeometry(Part.LineSegment(App.Vector(10.052628, -6.733031, 0), App.Vector(9.68524, -8.483031, 0)), False)
sketch4.addGeometry(Part.BSplineCurve([App.Vector(10.479611, -8.303544, 0), App.Vector(10.454818, -8.304139, 0), App.Vector(10.402767, -8.305388, 0), App.Vector(10.321317, -8.31442, 0), App.Vector(10.232684, -8.328627, 0), App.Vector(10.137006, -8.348275, 0), App.Vector(10.034193, -8.373873, 0), App.Vector(9.92412, -8.404891, 0), App.Vector(9.806664, -8.441085, 0), App.Vector(9.726527, -8.468768, 0), App.Vector(9.68524, -8.483031, 0)], [4, 1, 1, 1, 1, 1, 1, 1, 4], [0, 0.727614075, 1.527550888, 2.402655696, 3.361819828, 4.39328773, 5.511706796, 6.718025739, 8], False, 3, [1, 1, 1, 1, 1, 1, 1, 1, 1, 1, 1], False), False)
sketch4.addGeometry(Part.BSplineCurve([App.Vector(11.255753, -9.052342, 0), App.Vector(11.255055, -9.025201, 0), App.Vector(11.253686, -8.971907, 0), App.Vector(11.243653, -8.894016, 0), App.Vector(11.22774, -8.819718, 0), App.Vector(11.204616, -8.74971, 0), App.Vector(11.174891, -8.683607, 0), App.Vector(11.138338, -8.62183, 0), App.Vector(11.095069, -8.564035, 0), App.Vector(11.046409, -8.510036, 0), App.Vector(10.991325, -8.461788, 0), App.Vector(10.932181, -8.418606, 0), App.Vector(10.867181, -8.383682, 0), App.Vector(10.798669, -8.353796, 0), App.Vector(10.725061, -8.331954, 0), App.Vector(10.647674, -8.314354, 0), App.Vector(10.5651, -8.305899, 0), App.Vector(10.508604, -8.304342, 0), App.Vector(10.479611, -8.303544, 0)], [4, 1, 1, 1, 1, 1, 1, 1, 1, 1, 1, 1, 1, 1, 1, 1, 4], [0, 1.071512717, 2.104004018, 3.095982969, 4.067795438, 5.009520676, 5.952827242, 6.895998369, 7.856350385, 8.817411605, 9.782937659, 10.74115891, 11.725120868, 12.729302161, 13.768330494, 14.854722481, 16], False, 3, [1, 1, 1, 1, 1, 1, 1, 1, 1, 1, 1, 1, 1, 1, 1, 1, 1, 1, 1], False), False)
sketch4.addGeometry(Part.BSplineCurve([App.Vector(10.436843, -9.918928, 0), App.Vector(10.464449, -9.918001, 0), App.Vector(10.518953, -9.916172, 0), App.Vector(10.599247, -9.905217, 0), App.Vector(10.676037, -9.884955, 0), App.Vector(10.750433, -9.858691, 0), App.Vector(10.821135, -9.822919, 0), App.Vector(10.889879, -9.78115, 0), App.Vector(10.954157, -9.729859, 0), App.Vector(11.015767, -9.672829, 0), App.Vector(11.072196, -9.60966, 0), App.Vector(11.121331, -9.541408, 0), App.Vector(11.163246, -9.469444, 0), App.Vector(11.196648, -9.39329, 0), App.Vector(11.223757, -9.313644, 0), App.Vector(11.242391, -9.22996, 0), App.Vector(11.254016, -9.142415, 0), App.Vector(11.255166, -9.082761, 0), App.Vector(11.255753, -9.052342, 0)], [4, 1, 1, 1, 1, 1, 1, 1, 1, 1, 1, 1, 1, 1, 1, 1, 4], [0, 0.99750234, 1.969380735, 2.919490565, 3.862219911, 4.813679117, 5.776605688, 6.762898166, 7.778387729, 8.806918829, 9.816812977, 10.811632172, 11.809420289, 12.815921014, 13.846113939, 14.901663155, 16], False, 3, [1, 1, 1, 1, 1, 1, 1, 1, 1, 1, 1, 1, 1, 1, 1, 1, 1, 1, 1], False), False)
sketch4.addGeometry(Part.BSplineCurve([App.Vector(9.764467, -9.335595, 0), App.Vector(9.772807, -9.372275, 0), App.Vector(9.788463, -9.441131, 0), App.Vector(9.822097, -9.534952, 0), App.Vector(9.858144, -9.614747, 0), App.Vector(9.902234, -9.680006, 0), App.Vector(9.952838, -9.733574, 0), App.Vector(10.009005, -9.780072, 0), App.Vector(10.070711, -9.821782, 0), App.Vector(10.138643, -9.856405, 0), App.Vector(10.210217, -9.884455, 0), App.Vector(10.284585, -9.904032, 0), App.Vector(10.360245, -9.916342, 0), App.Vector(10.411323, -9.918067, 0), App.Vector(10.436843, -9.918928, 0)], [4, 1, 1, 1, 1, 1, 1, 1, 1, 1, 1, 1, 4], [0, 1.385459112, 2.600831482, 3.66841355, 4.605180919, 5.48910649, 6.376050311, 7.288896949, 8.229144678, 9.181161654, 10.117453426, 11.059436513, 12], False, 3, [1, 1, 1, 1, 1, 1, 1, 1, 1, 1, 1, 1, 1, 1, 1], False), False)
sketch4.addGeometry(Part.LineSegment(App.Vector(9.764467, -9.335595, 0), App.Vector(9.326266, -9.335595, 0)), False)
sketch4.addGeometry(Part.BSplineCurve([App.Vector(10.418614, -10.322774, 0), App.Vector(10.383059, -10.321921, 0), App.Vector(10.312916, -10.320237, 0), App.Vector(10.209898, -10.308293, 0), App.Vector(10.111068, -10.288027, 0), App.Vector(10.016847, -10.259018, 0), App.Vector(9.926532, -10.222632, 0), App.Vector(9.840895, -10.17762, 0), App.Vector(9.759601, -10.124386, 0), App.Vector(9.682547, -10.063946, 0), App.Vector(9.612271, -9.995, 0), App.Vector(9.547491, -9.920777, 0), App.Vector(9.492299, -9.838544, 0), App.Vector(9.443746, -9.750572, 0), App.Vector(9.402029, -9.656144, 0), App.Vector(9.368841, -9.555082, 0), App.Vector(9.342303, -9.447768, 0), App.Vector(9.331696, -9.373575, 0), App.Vector(9.326266, -9.335595, 0)], [4, 1, 1, 1, 1, 1, 1, 1, 1, 1, 1, 1, 1, 1, 1, 1, 4], [0, 1.049569621, 2.070583864, 3.057046508, 4.023914414, 4.977170942, 5.927726879, 6.875021894, 7.842677272, 8.813672282, 9.777581439, 10.74592533, 11.731059957, 12.74126976, 13.788569057, 14.867946107, 16], False, 3, [1, 1, 1, 1, 1, 1, 1, 1, 1, 1, 1, 1, 1, 1, 1, 1, 1, 1, 1], False), False)
sketch4.addGeometry(Part.BSplineCurve([App.Vector(11.704471, -9.067766, 0), App.Vector(11.703813, -9.096055, 0), App.Vector(11.702511, -9.152016, 0), App.Vector(11.695729, -9.235225, 0), App.Vector(11.682782, -9.316639, 0), App.Vector(11.665592, -9.396887, 0), App.Vector(11.641906, -9.475282, 0), App.Vector(11.614943, -9.552864, 0), App.Vector(11.581816, -9.628398, 0), App.Vector(11.543996, -9.701852, 0), App.Vector(11.502035, -9.772688, 0), App.Vector(11.455834, -9.840048, 0), App.Vector(11.405288, -9.903392, 0), App.Vector(11.350217, -9.96219, 0), App.Vector(11.292126, -10.017955, 0), App.Vector(11.229501, -10.069231, 0), App.Vector(11.162518, -10.116234, 0), App.Vector(11.092134, -10.159477, 0), App.Vector(11.018382, -10.198544, 0), App.Vector(10.940829, -10.23089, 0), App.Vector(10.8614, -10.26028, 0), App.Vector(10.778131, -10.282286, 0), App.Vector(10.692591, -10.300803, 0), App.Vector(10.603754, -10.313092, 0), App.Vector(10.512244, -10.321104, 0), App.Vector(10.450182, -10.322211, 0), App.Vector(10.418614, -10.322774, 0)], [4, 1, 1, 1, 1, 1, 1, 1, 1, 1, 1, 1, 1, 1, 1, 1, 1, 1, 1, 1, 1, 1, 1, 1, 4], [0, 1.012275937, 2.002451767, 2.98397589, 3.959820946, 4.936095762, 5.911940818, 6.896771482, 7.884012822, 8.866284557, 9.840372785, 10.804070441, 11.762530572, 12.720625922, 13.68308951, 14.655094125, 15.646011038, 16.637104318, 17.63729087, 18.650257215, 19.66446511, 20.715636712, 21.77986274, 22.870722459, 24], False, 3, [1, 1, 1, 1, 1, 1, 1, 1, 1, 1, 1, 1, 1, 1, 1, 1, 1, 1, 1, 1, 1, 1, 1, 1, 1, 1, 1], False), False)
sketch4.addGeometry(Part.BSplineCurve([App.Vector(10.543413, -7.899698, 0), App.Vector(10.585541, -7.900469, 0), App.Vector(10.668252, -7.901983, 0), App.Vector(10.788796, -7.918906, 0), App.Vector(10.903664, -7.944258, 0), App.Vector(11.011909, -7.982078, 0), App.Vector(11.114769, -8.028637, 0), App.Vector(11.211127, -8.086898, 0), App.Vector(11.300883, -8.155874, 0), App.Vector(11.383917, -8.23439, 0), App.Vector(11.459596, -8.319913, 0), App.Vector(11.524593, -8.412269, 0), App.Vector(11.580935, -8.508761, 0), App.Vector(11.625594, -8.611056, 0), App.Vector(11.66088, -8.718095, 0), App.Vector(11.685974, -8.830327, 0), App.Vector(11.701927, -8.947415, 0), App.Vector(11.703615, -9.027283, 0), App.Vector(11.704471, -9.067766, 0)], [4, 1, 1, 1, 1, 1, 1, 1, 1, 1, 1, 1, 1, 1, 1, 1, 4], [0, 1.094894284, 2.149641875, 3.159658044, 4.149576056, 5.125966368, 6.091225838, 7.071072142, 8.064343292, 9.05924964, 10.03573454, 10.996966885, 11.96032995, 12.932910184, 13.923798045, 14.947619342, 16], False, 3, [1, 1, 1, 1, 1, 1, 1, 1, 1, 1, 1, 1, 1, 1, 1, 1, 1, 1, 1], False), False)
sketch4.addGeometry(Part.BSplineCurve([App.Vector(10.232115, -7.966304, 0), App.Vector(10.254036, -7.95574, 0), App.Vector(10.29915, -7.933998, 0), App.Vector(10.374573, -7.915054, 0), App.Vector(10.45646, -7.901726, 0), App.Vector(10.513668, -7.900391, 0), App.Vector(10.543413, -7.899698, 0)], [4, 1, 1, 1, 4], [0, 0.906577793, 1.865744317, 2.890308309, 4], False, 3, [1, 1, 1, 1, 1, 1, 1], False), False)
sketch4.addGeometry(Part.LineSegment(App.Vector(10.232115, -7.966304, 0), App.Vector(10.420016, -7.136877, 0)), False)
sketch4.addGeometry(Part.LineSegment(App.Vector(10.420016, -7.136877, 0), App.Vector(11.569856, -7.136877, 0)), False)
sketch4.addConstraint(Sketcher.Constraint("Block", 1))
sketch4.addConstraint(Sketcher.Constraint("Block", 2))
sketch4.addConstraint(Sketcher.Constraint("Block", 3))
sketch4.addConstraint(Sketcher.Constraint("Block", 5))
sketch4.addConstraint(Sketcher.Constraint("Block", 6))
sketch4.addConstraint(Sketcher.Constraint("Block", 7))
sketch4.addConstraint(Sketcher.Constraint("Block", 8))
sketch4.addConstraint(Sketcher.Constraint("Block", 10))
sketch4.addConstraint(Sketcher.Constraint("Block", 11))
sketch4.addConstraint(Sketcher.Constraint("Block", 12))
sketch4.addConstraint(Sketcher.Constraint("Block", 13))
sketch4.addConstraint(Sketcher.Constraint("Block", 14))
sketch4.addConstraint(Sketcher.Constraint("Block", 15))
sketch4.addConstraint(Sketcher.Constraint("Block", 16))
sketch4.addConstraint(Sketcher.Constraint("Block", 20))
sketch4.addConstraint(Sketcher.Constraint("Block", 21))
sketch4.addConstraint(Sketcher.Constraint("Block", 22))
sketch4.addConstraint(Sketcher.Constraint("Block", 23))
sketch4.addConstraint(Sketcher.Constraint("Block", 25))
sketch4.addConstraint(Sketcher.Constraint("Block", 26))
sketch4.addConstraint(Sketcher.Constraint("Block", 27))
sketch4.addConstraint(Sketcher.Constraint("Block", 28))
sketch4.addConstraint(Sketcher.Constraint("Coincident", 0, 2, 1, 2))
sketch4.addConstraint(Sketcher.Constraint("Coincident", 3, 1, 4, 1))
sketch4.addConstraint(Sketcher.Constraint("Coincident", 4, 2, 5, 2))
sketch4.addConstraint(Sketcher.Constraint("Coincident", 8, 1, 9, 1))
sketch4.addConstraint(Sketcher.Constraint("Coincident", 9, 2, 10, 2))
sketch4.addConstraint(Sketcher.Constraint("Coincident", 16, 1, 0, 1))
sketch4.addConstraint(Sketcher.Constraint("Coincident", 17, 2, 18, 1))
sketch4.addConstraint(Sketcher.Constraint("Coincident", 18, 2, 19, 1))
sketch4.addConstraint(Sketcher.Constraint("Coincident", 19, 2, 20, 2))
sketch4.addConstraint(Sketcher.Constraint("Coincident", 23, 1, 24, 1))
sketch4.addConstraint(Sketcher.Constraint("Coincident", 24, 2, 25, 2))
sketch4.addConstraint(Sketcher.Constraint("Coincident", 28, 1, 29, 1))
sketch4.addConstraint(Sketcher.Constraint("Coincident", 29, 2, 30, 1))
sketch4.addConstraint(Sketcher.Constraint("Coincident", 30, 2, 17, 1))
sketch4.addConstraint(Sketcher.Constraint("Vertical", 17))
sketch4.addConstraint(Sketcher.Constraint("Horizontal", 18))
sketch4.addConstraint(Sketcher.Constraint("Horizontal", 30))
sketch4.addConstraint(Sketcher.Constraint("DistanceX", 30, 1, 30, 2, Q("1.14984 mm")))
sketch4.addConstraint(Sketcher.Constraint("DistanceY", 19, 2, 18, 2, Q("1.75 mm")))
sketch4.addConstraint(Sketcher.Constraint("Distance", 19, Q("1.788148 mm")))
sketch4.addConstraint(Sketcher.Constraint("DistanceX", 18, 2, 18, 1, Q("1.517228 mm")))
sketch4.addConstraint(Sketcher.Constraint("DistanceY", 17, 1, 17, 2, Q("0.403846 mm")))
pocket1 = doc.addObject("PartDesign::Pocket", "Pocket")
body.addObject(pocket1)
pocket1.Profile = sketch4
pocket1.Length = Q("0.02 in")

doc.recompute()
